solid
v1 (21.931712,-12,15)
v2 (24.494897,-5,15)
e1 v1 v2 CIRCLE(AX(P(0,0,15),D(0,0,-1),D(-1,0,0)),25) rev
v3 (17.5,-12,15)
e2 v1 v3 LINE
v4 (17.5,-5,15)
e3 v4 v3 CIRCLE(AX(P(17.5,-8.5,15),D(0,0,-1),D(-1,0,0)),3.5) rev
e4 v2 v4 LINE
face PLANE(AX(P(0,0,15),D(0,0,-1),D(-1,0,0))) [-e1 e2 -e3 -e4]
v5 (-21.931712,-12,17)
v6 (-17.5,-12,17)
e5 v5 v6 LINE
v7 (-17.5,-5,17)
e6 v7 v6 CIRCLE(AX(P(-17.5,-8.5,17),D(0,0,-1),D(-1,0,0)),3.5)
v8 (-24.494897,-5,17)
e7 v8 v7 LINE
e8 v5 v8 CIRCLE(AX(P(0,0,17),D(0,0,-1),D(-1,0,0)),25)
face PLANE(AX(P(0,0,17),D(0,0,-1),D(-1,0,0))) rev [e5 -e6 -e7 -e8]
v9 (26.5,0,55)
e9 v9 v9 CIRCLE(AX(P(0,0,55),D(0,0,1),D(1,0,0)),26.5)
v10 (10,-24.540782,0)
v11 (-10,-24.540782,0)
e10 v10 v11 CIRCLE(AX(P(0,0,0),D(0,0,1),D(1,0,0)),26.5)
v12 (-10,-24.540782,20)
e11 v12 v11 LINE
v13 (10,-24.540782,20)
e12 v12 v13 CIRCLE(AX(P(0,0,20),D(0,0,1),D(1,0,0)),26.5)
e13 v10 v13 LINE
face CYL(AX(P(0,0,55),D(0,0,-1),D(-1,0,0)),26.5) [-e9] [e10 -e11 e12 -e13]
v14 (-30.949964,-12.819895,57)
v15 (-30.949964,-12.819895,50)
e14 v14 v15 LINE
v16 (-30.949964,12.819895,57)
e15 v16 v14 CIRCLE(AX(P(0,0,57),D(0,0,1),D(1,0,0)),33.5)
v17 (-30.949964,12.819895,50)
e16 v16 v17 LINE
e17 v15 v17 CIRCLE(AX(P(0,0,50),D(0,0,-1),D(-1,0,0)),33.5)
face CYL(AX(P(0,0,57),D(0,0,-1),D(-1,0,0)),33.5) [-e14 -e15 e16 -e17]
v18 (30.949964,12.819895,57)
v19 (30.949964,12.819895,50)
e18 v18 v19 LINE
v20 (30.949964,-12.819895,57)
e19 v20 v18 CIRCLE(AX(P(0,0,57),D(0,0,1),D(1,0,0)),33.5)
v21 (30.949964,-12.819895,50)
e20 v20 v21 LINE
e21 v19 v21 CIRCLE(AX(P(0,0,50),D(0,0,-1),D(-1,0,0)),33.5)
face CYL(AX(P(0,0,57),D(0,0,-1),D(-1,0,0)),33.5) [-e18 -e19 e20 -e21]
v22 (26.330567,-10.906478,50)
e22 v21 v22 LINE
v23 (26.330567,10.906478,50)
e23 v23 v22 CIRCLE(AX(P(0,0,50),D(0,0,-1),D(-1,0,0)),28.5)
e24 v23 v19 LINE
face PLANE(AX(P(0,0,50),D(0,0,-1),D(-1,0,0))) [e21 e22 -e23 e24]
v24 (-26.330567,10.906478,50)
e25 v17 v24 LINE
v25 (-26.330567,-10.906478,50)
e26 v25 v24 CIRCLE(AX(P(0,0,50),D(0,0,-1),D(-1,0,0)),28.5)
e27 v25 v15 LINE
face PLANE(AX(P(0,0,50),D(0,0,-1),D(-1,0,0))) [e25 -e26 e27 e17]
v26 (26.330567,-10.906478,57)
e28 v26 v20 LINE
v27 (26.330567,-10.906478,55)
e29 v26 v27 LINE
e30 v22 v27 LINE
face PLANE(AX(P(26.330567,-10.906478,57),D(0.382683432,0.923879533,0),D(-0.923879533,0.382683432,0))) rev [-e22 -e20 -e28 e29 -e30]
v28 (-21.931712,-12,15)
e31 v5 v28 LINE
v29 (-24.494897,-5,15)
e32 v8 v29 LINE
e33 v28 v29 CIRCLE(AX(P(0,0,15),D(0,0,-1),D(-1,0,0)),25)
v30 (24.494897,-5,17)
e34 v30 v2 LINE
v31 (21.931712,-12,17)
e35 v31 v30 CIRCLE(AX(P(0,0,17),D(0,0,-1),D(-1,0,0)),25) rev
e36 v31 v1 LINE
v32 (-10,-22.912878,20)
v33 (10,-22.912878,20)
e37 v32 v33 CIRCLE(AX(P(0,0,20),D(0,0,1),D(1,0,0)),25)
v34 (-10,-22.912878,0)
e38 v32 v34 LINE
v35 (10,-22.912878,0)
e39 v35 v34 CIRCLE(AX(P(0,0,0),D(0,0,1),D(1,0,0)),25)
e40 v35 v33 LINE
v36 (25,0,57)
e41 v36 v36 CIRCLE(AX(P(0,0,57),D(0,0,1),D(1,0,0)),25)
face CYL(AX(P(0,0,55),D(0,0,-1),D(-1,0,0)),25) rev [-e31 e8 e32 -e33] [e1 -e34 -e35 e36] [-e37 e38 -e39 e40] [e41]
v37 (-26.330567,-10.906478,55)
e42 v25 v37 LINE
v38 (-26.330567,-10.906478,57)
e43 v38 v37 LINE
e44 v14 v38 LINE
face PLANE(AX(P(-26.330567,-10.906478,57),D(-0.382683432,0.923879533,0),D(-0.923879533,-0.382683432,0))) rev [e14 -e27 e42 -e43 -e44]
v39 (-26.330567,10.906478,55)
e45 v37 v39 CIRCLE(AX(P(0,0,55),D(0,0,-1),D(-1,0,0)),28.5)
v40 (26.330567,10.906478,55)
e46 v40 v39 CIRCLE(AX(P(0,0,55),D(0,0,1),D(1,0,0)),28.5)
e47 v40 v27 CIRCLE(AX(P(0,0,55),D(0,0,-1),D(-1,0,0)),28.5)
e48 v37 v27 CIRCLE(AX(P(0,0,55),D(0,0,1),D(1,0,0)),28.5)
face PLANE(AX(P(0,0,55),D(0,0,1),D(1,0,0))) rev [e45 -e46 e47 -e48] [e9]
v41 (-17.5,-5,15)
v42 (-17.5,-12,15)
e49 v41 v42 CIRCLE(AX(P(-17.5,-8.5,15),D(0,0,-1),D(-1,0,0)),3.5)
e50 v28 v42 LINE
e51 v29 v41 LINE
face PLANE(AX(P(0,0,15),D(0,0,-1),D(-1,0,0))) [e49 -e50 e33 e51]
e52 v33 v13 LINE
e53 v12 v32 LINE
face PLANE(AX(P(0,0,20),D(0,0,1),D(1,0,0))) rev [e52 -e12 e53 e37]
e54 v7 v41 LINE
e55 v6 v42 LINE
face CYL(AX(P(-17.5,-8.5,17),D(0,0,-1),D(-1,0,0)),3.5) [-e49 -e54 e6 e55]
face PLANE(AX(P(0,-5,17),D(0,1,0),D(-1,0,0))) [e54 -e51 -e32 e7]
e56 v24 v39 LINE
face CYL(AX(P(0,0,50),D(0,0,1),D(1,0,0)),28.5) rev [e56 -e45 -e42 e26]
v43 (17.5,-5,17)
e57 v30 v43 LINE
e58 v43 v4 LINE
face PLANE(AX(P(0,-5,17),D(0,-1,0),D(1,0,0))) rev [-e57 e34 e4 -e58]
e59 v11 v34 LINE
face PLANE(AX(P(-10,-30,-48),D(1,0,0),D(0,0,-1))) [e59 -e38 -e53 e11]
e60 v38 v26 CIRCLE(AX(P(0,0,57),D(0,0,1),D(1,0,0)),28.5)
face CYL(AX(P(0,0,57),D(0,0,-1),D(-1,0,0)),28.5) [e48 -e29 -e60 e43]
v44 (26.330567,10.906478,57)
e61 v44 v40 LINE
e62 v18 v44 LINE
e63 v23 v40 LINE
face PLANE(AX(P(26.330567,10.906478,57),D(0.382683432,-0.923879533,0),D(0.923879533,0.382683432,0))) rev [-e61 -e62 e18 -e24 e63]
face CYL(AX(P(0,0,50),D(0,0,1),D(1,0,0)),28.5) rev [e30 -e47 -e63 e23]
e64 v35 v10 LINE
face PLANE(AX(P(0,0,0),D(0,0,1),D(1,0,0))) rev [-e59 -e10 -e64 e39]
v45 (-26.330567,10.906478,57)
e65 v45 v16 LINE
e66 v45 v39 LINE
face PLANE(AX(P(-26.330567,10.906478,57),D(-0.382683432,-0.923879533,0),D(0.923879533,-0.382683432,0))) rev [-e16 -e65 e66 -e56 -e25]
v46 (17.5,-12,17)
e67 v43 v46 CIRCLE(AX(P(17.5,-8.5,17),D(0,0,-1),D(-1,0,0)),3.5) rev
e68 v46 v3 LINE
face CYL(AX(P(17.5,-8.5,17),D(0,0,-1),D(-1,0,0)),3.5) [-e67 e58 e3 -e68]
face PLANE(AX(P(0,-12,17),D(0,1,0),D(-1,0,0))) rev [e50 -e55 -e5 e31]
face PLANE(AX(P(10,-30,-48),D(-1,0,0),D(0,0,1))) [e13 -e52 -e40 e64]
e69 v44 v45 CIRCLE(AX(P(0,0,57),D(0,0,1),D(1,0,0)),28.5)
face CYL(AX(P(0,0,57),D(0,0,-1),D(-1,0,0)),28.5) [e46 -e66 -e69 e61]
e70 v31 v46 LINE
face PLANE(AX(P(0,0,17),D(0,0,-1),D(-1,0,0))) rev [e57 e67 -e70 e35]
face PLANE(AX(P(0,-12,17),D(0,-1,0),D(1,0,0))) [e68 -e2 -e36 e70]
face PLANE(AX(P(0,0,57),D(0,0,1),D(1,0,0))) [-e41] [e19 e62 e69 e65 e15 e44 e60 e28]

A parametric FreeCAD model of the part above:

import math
import FreeCAD as App
import Part
import Sketcher

V = App.Vector
Q = App.Units.Quantity


def add_polygon(sketch, points):
    """Adds a closed chain of lines whose ends are joined by coincident constraints."""
    first, n = sketch.GeometryCount, len(points)
    for a, b in zip(points, points[1:] + points[:1]):
        sketch.addGeometry(Part.LineSegment(App.Vector(*a, 0), App.Vector(*b, 0)), False)
    for i in range(n):
        sketch.addConstraint(Sketcher.Constraint("Coincident", first + i, 2, first + (i + 1) % n, 1))

doc = App.newDocument("Part")
body = doc.addObject("PartDesign::Body", "Body")

# Sketch on XY plane
sketch1 = doc.addObject("Sketcher::SketchObject", "Sketch")
body.addObject(sketch1)
sketch1.AttachmentSupport = (doc.XY_Plane, [""])
sketch1.MapMode = "FlatFace"
sketch1.addGeometry([
    Part.Circle(V(0, 0, 0), V(0, 0, 1), 26),
    Part.Circle(V(0, 0, 0), V(0, 0, 1), 25),
], False)
sketch1.addConstraint([
    Sketcher.Constraint("Coincident", 0, 3, -1, 1),
    Sketcher.Constraint("Coincident", 1, 3, -1, 1),
    Sketcher.Constraint("Diameter", 0, Q("53 mm")),
    Sketcher.Constraint("Diameter", 1, Q("50 mm")),
])
pad1 = doc.addObject("PartDesign::Pad", "Pad")
body.addObject(pad1)
pad1.Profile = sketch1
pad1.Length = 55

# Sketch on XY plane
sketch2 = doc.addObject("Sketcher::SketchObject", "Sketch001")
body.addObject(sketch2)
sketch2.AttachmentSupport = (doc.XY_Plane, [""])
sketch2.MapMode = "FlatFace"
sketch2.AttachmentOffset = App.Placement(V(0, 0, 55), App.Rotation())
sketch2.addGeometry([
    Part.LineSegment(V(-26.3, 10.9, 0), V(-30.9, 12.8, 0)),  # 0
    Part.ArcOfCircle(Part.Circle(V(0, 0, 0), V(0, 0, 1), 33.5), math.radians(157), math.radians(203)),  # 1
    Part.LineSegment(V(-30.9, -12.8, 0), V(-26.3, -10.9, 0)),  # 2
    Part.ArcOfCircle(Part.Circle(V(0, 0, 0), V(0, 0, 1), 28.5), math.radians(-158), math.radians(-22)),  # 3
    Part.LineSegment(V(26.3, -10.9, 0), V(30.9, -12.8, 0)),  # 4
    Part.ArcOfCircle(Part.Circle(V(0, 0, 0), V(0, 0, 1), 33.5), math.radians(-23), math.radians(23)),  # 5
    Part.LineSegment(V(30.9, 12.8, 0), V(26.3, 10.9, 0)),  # 6
    Part.ArcOfCircle(Part.Circle(V(0, 0, 0), V(0, 0, 1), 28.5), math.radians(22), math.radians(158)),  # 7
    Part.Circle(V(0, 0, 0), V(0, 0, 1), 25),  # 8
], False)
sketch2.addConstraint([
    Sketcher.Constraint("Coincident", 0, 2, 1, 1),
    Sketcher.Constraint("Coincident", 1, 2, 2, 1),
    Sketcher.Constraint("Coincident", 2, 2, 3, 1),
    Sketcher.Constraint("Coincident", 3, 2, 4, 1),
    Sketcher.Constraint("Coincident", 4, 2, 5, 1),
    Sketcher.Constraint("Coincident", 5, 2, 6, 1),
    Sketcher.Constraint("Coincident", 6, 2, 7, 1),
    Sketcher.Constraint("Coincident", 7, 2, 0, 1),
    Sketcher.Constraint("Coincident", 1, 3, -1, 1),
    Sketcher.Constraint("Coincident", 3, 3, -1, 1),
    Sketcher.Constraint("Coincident", 5, 3, -1, 1),
    Sketcher.Constraint("Coincident", 7, 3, -1, 1),
    Sketcher.Constraint("Coincident", 8, 3, -1, 1),
    Sketcher.Constraint("Equal", 1, 5),
    Sketcher.Constraint("Equal", 3, 7),
    Sketcher.Constraint("Parallel", 0, 4),
    Sketcher.Constraint("Parallel", 2, 6),
    Sketcher.Constraint("Horizontal", 2, 2, 3, 2),
    Sketcher.Constraint("Horizontal", 1, 2, 4, 2),
    Sketcher.Constraint("Horizontal", 0, 2, 5, 2),
    Sketcher.Constraint("Vertical", 0, 2, 1, 2),
    Sketcher.Constraint("Diameter", 8, Q("50 mm")),
    Sketcher.Constraint("Radius", 1, Q("33.5 mm")),
    Sketcher.Constraint("Radius", 3, Q("28.5 mm")),
    Sketcher.Constraint("Angle", 0, Q("157.5 deg")),
    Sketcher.Constraint("DistanceY", 1, 2, 0, 2, Q("25.63979 mm")),
])
pad2 = doc.addObject("PartDesign::Pad", "Pad001")
body.addObject(pad2)
pad2.Profile = sketch2
pad2.Length = 2

# Sketch on XY plane
sketch3 = doc.addObject("Sketcher::SketchObject", "Sketch002")
body.addObject(sketch3)
sketch3.AttachmentSupport = (doc.XY_Plane, [""])
sketch3.MapMode = "FlatFace"
sketch3.AttachmentOffset = App.Placement(V(0, 0, 50), App.Rotation())
sketch3.addGeometry([
    Part.ArcOfCircle(Part.Circle(V(0, 0, 0), V(0, 0, 1), 28.5), math.radians(-22), math.radians(22)),  # 0
    Part.LineSegment(V(26.3, 10.9, 0), V(30.9, 12.8, 0)),  # 1
    Part.ArcOfCircle(Part.Circle(V(0, 0, 0), V(0, 0, 1), 33.5), math.radians(-23), math.radians(23)),  # 2
    Part.LineSegment(V(30.9, -12.8, 0), V(26.3, -10.9, 0)),  # 3
    Part.LineSegment(V(-30.9, 12.8, 0), V(-26.3, 10.9, 0)),  # 4
    Part.ArcOfCircle(Part.Circle(V(0, 0, 0), V(0, 0, 1), 28.5), math.radians(158), math.radians(180)),  # 5
    Part.ArcOfCircle(Part.Circle(V(0, 0, 0), V(0, 0, 1), 28.5), math.radians(-180), math.radians(-158)),  # 6
    Part.LineSegment(V(-26.3, -10.9, 0), V(-30.9, -12.8, 0)),  # 7
    Part.ArcOfCircle(Part.Circle(V(0, 0, 0), V(0, 0, 1), 33.5), math.radians(157), math.radians(203)),  # 8
], False)
sketch3.addConstraint([
    Sketcher.Constraint("Coincident", 0, 2, 1, 1),
    Sketcher.Constraint("Coincident", 1, 2, 2, 2),
    Sketcher.Constraint("Coincident", 2, 1, 3, 1),
    Sketcher.Constraint("Coincident", 3, 2, 0, 1),
    Sketcher.Constraint("Coincident", 4, 2, 5, 1),
    Sketcher.Constraint("Tangent", 5, 2, 6, 1),
    Sketcher.Constraint("Coincident", 6, 2, 7, 1),
    Sketcher.Constraint("Coincident", 7, 2, 8, 2),
    Sketcher.Constraint("Coincident", 8, 1, 4, 1),
    Sketcher.Constraint("Coincident", 0, 3, -1, 1),
    Sketcher.Constraint("Coincident", 2, 3, -1, 1),
    Sketcher.Constraint("Coincident", 5, 3, -1, 1),
    Sketcher.Constraint("Coincident", 8, 3, -1, 1),
    Sketcher.Constraint("Equal", 0, 5),
    Sketcher.Constraint("Equal", 5, 6),
    Sketcher.Constraint("Equal", 2, 8),
    Sketcher.Constraint("PointOnObject", 5, 2, -1),
    Sketcher.Constraint("Parallel", 3, 4),
    Sketcher.Constraint("Parallel", 1, 7),
    Sketcher.Constraint("Horizontal", 0, 2, 4, 2),
    Sketcher.Constraint("Horizontal", 3, 2, 6, 2),
    Sketcher.Constraint("Horizontal", 2, 1, 7, 2),
    Sketcher.Constraint("Vertical", 1, 2, 2, 1),
    Sketcher.Constraint("Radius", 0, Q("28.5 mm")),
    Sketcher.Constraint("Radius", 2, Q("33.5 mm")),
    Sketcher.Constraint("Angle", 1, Q("22.5 deg")),
    Sketcher.Constraint("DistanceY", 2, 1, 1, 2, Q("25.63979 mm")),
])
pad3 = doc.addObject("PartDesign::Pad", "Pad002")
body.addObject(pad3)
pad3.Profile = sketch3
pad3.Length = 5

# Sketch on XY plane
sketch4 = doc.addObject("Sketcher::SketchObject", "Sketch003")
body.addObject(sketch4)
sketch4.AttachmentSupport = (doc.XY_Plane, [""])
sketch4.MapMode = "FlatFace"
sketch4.AttachmentOffset = App.Placement(V(0, 0, 20), App.Rotation())
add_polygon(sketch4, [(10, -20), (10, -30), (-10, -30), (-10, -20)])  # lines 0-3
sketch4.addConstraint([
    Sketcher.Constraint("Vertical", 0),
    Sketcher.Constraint("Horizontal", 1),
    Sketcher.Constraint("Vertical", 2),
    Sketcher.Constraint("Horizontal", 3),
    Sketcher.Constraint("DistanceX", 1, 2, 1, 1, Q("20 mm")),
    Sketcher.Constraint("DistanceY", 0, 2, 0, 1, Q("10 mm")),
    Sketcher.Constraint("DistanceX", -1, 1, 0, 2, Q("10 mm")),
    Sketcher.Constraint("DistanceY", 0, 2, -1, 1, Q("30 mm")),
])
pocket1 = doc.addObject("PartDesign::Pocket", "Pocket")
body.addObject(pocket1)
pocket1.Profile = sketch4
pocket1.Length = 68

# Sketch on XY plane
sketch5 = doc.addObject("Sketcher::SketchObject", "Sketch004")
body.addObject(sketch5)
sketch5.AttachmentSupport = (doc.XY_Plane, [""])
sketch5.MapMode = "FlatFace"
sketch5.AttachmentOffset = App.Placement(V(0, 0, 15), App.Rotation())
sketch5.addGeometry([
    Part.ArcOfCircle(Part.Circle(V(0, 0, 0), V(0, 0, 1), 25), math.radians(-28.69), math.radians(-11.54)),  # 0
    Part.LineSegment(V(21.9, -12, 0), V(17.5, -12, 0)),  # 1
    Part.ArcOfCircle(Part.Circle(V(17.5, -8.5, 0), V(0, 0, 1), 3.5), math.radians(90), math.radians(270)),  # 2
    Part.LineSegment(V(17.5, -5, 0), V(24.5, -5, 0)),  # 3
    Part.LineSegment(V(-17.5, -12, 0), V(-21.9, -12, 0)),  # 4
    Part.ArcOfCircle(Part.Circle(V(0, 0, 0), V(0, 0, 1), 25), math.radians(-168.46), math.radians(-151.31)),  # 5
    Part.LineSegment(V(-24.5, -5, 0), V(-17.5, -5, 0)),  # 6
    Part.ArcOfCircle(Part.Circle(V(-17.5, -8.5, 0), V(0, 0, 1), 3.5), math.radians(-90), math.radians(90)),  # 7
], False)
sketch5.addConstraint([
    Sketcher.Constraint("Coincident", 0, 1, 1, 1),
    Sketcher.Constraint("Tangent", 1, 2, 2, 2),
    Sketcher.Constraint("Tangent", 2, 1, 3, 1),
    Sketcher.Constraint("Coincident", 3, 2, 0, 2),
    Sketcher.Constraint("Coincident", 4, 2, 5, 2),
    Sketcher.Constraint("Coincident", 5, 1, 6, 1),
    Sketcher.Constraint("Tangent", 6, 2, 7, 2),
    Sketcher.Constraint("Tangent", 7, 1, 4, 1),
    Sketcher.Constraint("Horizontal", 1),
    Sketcher.Constraint("Horizontal", 3),
    Sketcher.Constraint("Horizontal", 4),
    Sketcher.Constraint("Horizontal", 6),
    Sketcher.Constraint("Coincident", 0, 3, -1, 1),
    Sketcher.Constraint("Coincident", 5, 3, -1, 1),
    Sketcher.Constraint("Equal", 0, 5),
    Sketcher.Constraint("Equal", 2, 7),
    Sketcher.Constraint("Symmetric", 2, 3, 7, 3, -2),
    Sketcher.Constraint("Radius", 0, Q("25 mm")),
    Sketcher.Constraint("Radius", 2, Q("3.5 mm")),
    Sketcher.Constraint("DistanceY", 0, 1, -1, 1, Q("12 mm")),
    Sketcher.Constraint("DistanceX", 7, 3, 2, 3, Q("35 mm")),
])
pad4 = doc.addObject("PartDesign::Pad", "Pad003")
body.addObject(pad4)
pad4.Profile = sketch5
pad4.Length = 2

doc.recompute()
